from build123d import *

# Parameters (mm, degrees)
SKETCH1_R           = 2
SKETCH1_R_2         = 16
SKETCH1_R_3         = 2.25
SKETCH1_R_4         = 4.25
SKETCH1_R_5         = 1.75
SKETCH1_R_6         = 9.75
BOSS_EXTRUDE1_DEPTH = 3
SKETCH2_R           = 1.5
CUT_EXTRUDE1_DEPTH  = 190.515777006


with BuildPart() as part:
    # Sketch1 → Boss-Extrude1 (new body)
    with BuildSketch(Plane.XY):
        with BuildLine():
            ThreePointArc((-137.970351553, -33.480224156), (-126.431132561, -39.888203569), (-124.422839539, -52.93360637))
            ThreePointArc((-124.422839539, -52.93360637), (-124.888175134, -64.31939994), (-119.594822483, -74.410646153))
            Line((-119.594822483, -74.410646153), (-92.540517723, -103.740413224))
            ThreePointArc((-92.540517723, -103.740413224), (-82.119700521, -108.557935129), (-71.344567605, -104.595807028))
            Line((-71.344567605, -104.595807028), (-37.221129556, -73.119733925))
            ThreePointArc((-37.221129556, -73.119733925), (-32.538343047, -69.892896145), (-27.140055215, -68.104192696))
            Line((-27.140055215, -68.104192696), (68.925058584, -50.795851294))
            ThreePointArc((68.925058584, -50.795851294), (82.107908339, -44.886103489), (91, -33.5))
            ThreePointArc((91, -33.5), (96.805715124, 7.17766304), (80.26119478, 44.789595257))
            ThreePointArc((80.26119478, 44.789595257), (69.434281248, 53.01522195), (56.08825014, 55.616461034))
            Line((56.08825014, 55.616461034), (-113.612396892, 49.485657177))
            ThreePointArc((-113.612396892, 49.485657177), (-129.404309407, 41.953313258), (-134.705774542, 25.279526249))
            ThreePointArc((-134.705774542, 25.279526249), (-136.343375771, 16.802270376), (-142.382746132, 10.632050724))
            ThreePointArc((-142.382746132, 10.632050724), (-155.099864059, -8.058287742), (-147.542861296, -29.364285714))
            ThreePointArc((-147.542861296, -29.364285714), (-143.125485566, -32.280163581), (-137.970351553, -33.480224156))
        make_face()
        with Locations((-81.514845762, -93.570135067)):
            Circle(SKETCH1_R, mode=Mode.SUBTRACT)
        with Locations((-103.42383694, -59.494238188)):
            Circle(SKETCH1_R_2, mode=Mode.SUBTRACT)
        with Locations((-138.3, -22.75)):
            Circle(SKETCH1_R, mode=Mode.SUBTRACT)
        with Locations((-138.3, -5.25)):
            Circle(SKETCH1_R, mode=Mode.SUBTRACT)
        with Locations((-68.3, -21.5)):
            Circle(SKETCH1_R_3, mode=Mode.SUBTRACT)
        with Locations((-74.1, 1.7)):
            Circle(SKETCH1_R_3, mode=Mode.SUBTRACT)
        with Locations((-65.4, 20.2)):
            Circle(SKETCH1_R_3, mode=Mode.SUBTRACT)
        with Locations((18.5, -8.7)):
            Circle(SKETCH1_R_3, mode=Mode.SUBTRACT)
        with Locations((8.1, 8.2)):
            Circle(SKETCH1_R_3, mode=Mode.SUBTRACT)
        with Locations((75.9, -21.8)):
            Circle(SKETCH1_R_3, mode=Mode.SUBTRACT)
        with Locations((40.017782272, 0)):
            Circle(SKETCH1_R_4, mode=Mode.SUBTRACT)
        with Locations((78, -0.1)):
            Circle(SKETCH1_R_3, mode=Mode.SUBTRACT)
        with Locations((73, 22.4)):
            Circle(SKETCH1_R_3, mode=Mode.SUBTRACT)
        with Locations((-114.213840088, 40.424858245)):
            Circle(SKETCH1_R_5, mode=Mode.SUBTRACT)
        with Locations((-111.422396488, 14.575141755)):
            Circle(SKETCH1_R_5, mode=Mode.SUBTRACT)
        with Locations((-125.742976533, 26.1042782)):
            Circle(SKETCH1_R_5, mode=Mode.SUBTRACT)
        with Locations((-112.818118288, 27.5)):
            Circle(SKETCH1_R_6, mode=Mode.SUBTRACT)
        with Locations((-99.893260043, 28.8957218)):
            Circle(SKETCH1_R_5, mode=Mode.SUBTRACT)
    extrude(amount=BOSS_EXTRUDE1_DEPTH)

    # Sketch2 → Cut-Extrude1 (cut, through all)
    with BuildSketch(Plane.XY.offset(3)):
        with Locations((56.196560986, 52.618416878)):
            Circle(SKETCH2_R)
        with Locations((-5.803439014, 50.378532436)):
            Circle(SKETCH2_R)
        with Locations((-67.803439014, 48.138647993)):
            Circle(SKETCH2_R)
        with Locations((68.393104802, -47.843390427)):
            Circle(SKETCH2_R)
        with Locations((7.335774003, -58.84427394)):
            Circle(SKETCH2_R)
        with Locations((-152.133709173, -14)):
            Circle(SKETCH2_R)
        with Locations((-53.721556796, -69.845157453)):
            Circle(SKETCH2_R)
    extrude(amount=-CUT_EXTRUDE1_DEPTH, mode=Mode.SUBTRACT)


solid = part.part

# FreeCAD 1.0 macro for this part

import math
import FreeCAD as App
import Part
import Sketcher

V = App.Vector
Q = App.Units.Quantity

doc = App.newDocument("Part")
body = doc.addObject("PartDesign::Body", "Body")

sketch1 = doc.addObject("Sketcher::SketchObject", "Sketch")
body.addObject(sketch1)
sketch1.AttachmentSupport = (doc.XY_Plane, [""])
sketch1.MapMode = "FlatFace"
sketch1.addGeometry([
    Part.ArcOfCircle(Part.Circle(V(-138.7, -48.5, 0), V(0, 0, 1), 15), math.radians(-17), math.radians(87)),
    Part.ArcOfCircle(Part.Circle(V(-103.4, -59.5, 0), V(0, 0, 1), 22), math.radians(163), math.radians(223)),
    Part.LineSegment(V(-119.6, -74.4, 0), V(-92.5, -103.7, 0)),
    Part.ArcOfCircle(Part.Circle(V(-81.5, -93.6, 0), V(0, 0, 1), 15), math.radians(-137), math.radians(-47)),
    Part.LineSegment(V(-71.3, -104.6, 0), V(-37.2, -73.1, 0)),
    Part.ArcOfCircle(Part.Circle(V(-23.6, -87.9, 0), V(0, 0, 1), 20.1), math.radians(100), math.radians(133)),
    Part.LineSegment(V(-27.1, -68.1, 0), V(68.9, -50.8, 0)),
    Part.ArcOfCircle(Part.Circle(V(63.6, -21.3, 0), V(0, 0, 1), 30), math.radians(-80), math.radians(-24)),
    Part.ArcOfCircle(Part.Circle(V(22.7, -3, 0), V(0, 0, 1), 74.8), math.radians(-24), math.radians(40)),
    Part.ArcOfCircle(Part.Circle(V(57.2, 25.6, 0), V(0, 0, 1), 30), math.radians(40), math.radians(92)),
    Part.LineSegment(V(56.1, 55.6, 0), V(-113.6, 49.5, 0)),
    Part.ArcOfCircle(Part.Circle(V(-112.8, 27.5, 0), V(0, 0, 1), 22), math.radians(92), math.radians(186)),
    Part.ArcOfCircle(Part.Circle(V(-149.6, 23.8, 0), V(0, 0, 1), 15), math.radians(-61), math.radians(6)),
    Part.ArcOfCircle(Part.Circle(V(-130.3, -11.3, 0), V(0, 0, 1), 25), math.radians(119), math.radians(226)),
    Part.ArcOfCircle(Part.Circle(V(-137.2, -18.5, 0), V(0, 0, 1), 15), math.radians(-134), math.radians(-93)),
    Part.Circle(V(-81.5, -93.6, 0), V(0, 0, 1), 2),
    Part.Circle(V(-103.4, -59.5, 0), V(0, 0, 1), 16),
    Part.Circle(V(-138.3, -22.8, 0), V(0, 0, 1), 2),
    Part.Circle(V(-138.3, -5.2, 0), V(0, 0, 1), 2),
    Part.Circle(V(-68.3, -21.5, 0), V(0, 0, 1), 2.2),
    Part.Circle(V(-74.1, 1.7, 0), V(0, 0, 1), 2.2),
    Part.Circle(V(-111.4, 14.6, 0), V(0, 0, 1), 1.8),
    Part.Circle(V(-125.7, 26.1, 0), V(0, 0, 1), 1.8),
    Part.Circle(V(-112.8, 27.5, 0), V(0, 0, 1), 9.8),
    Part.Circle(V(-114.2, 40.4, 0), V(0, 0, 1), 1.8),
    Part.Circle(V(-99.9, 28.9, 0), V(0, 0, 1), 1.8),
    Part.Circle(V(-65.4, 20.2, 0), V(0, 0, 1), 2.2),
    Part.Circle(V(18.5, -8.7, 0), V(0, 0, 1), 2.2),
    Part.Circle(V(75.9, -21.8, 0), V(0, 0, 1), 2.2),
    Part.Circle(V(40, 0, 0), V(0, 0, 1), 4.2),
    Part.Circle(V(78, -0.1, 0), V(0, 0, 1), 2.2),
    Part.Circle(V(8.1, 8.2, 0), V(0, 0, 1), 2.2),
    Part.Circle(V(73, 22.4, 0), V(0, 0, 1), 2.2),
], False)
sketch1.addConstraint([
    Sketcher.Constraint("Tangent", 0, 1, 1, 1),
    Sketcher.Constraint("Tangent", 1, 2, 2, 1),
    Sketcher.Constraint("Tangent", 2, 2, 3, 1),
    Sketcher.Constraint("Tangent", 3, 2, 4, 1),
    Sketcher.Constraint("Tangent", 4, 2, 5, 2),
    Sketcher.Constraint("Tangent", 5, 1, 6, 1),
    Sketcher.Constraint("Tangent", 6, 2, 7, 1),
    Sketcher.Constraint("Tangent", 7, 2, 8, 1),
    Sketcher.Constraint("Tangent", 8, 2, 9, 1),
    Sketcher.Constraint("Tangent", 9, 2, 10, 1),
    Sketcher.Constraint("Tangent", 10, 2, 11, 1),
    Sketcher.Constraint("Tangent", 11, 2, 12, 2),
    Sketcher.Constraint("Tangent", 12, 1, 13, 1),
    Sketcher.Constraint("Tangent", 13, 2, 14, 1),
    Sketcher.Constraint("Tangent", 14, 2, 0, 2),
    Sketcher.Constraint("Coincident", 15, 3, 3, 3),
    Sketcher.Constraint("Coincident", 16, 3, 1, 3),
    Sketcher.Constraint("Coincident", 23, 3, 11, 3),
    Sketcher.Constraint("Equal", 0, 3),
    Sketcher.Constraint("Equal", 7, 9),
    Sketcher.Constraint("Equal", 1, 11),
    Sketcher.Constraint("Equal", 3, 12),
    Sketcher.Constraint("Equal", 12, 14),
    Sketcher.Constraint("Equal", 15, 17),
    Sketcher.Constraint("Equal", 17, 18),
    Sketcher.Constraint("Equal", 19, 20),
    Sketcher.Constraint("Equal", 21, 22),
    Sketcher.Constraint("Equal", 22, 24),
    Sketcher.Constraint("Equal", 24, 25),
    Sketcher.Constraint("Equal", 20, 26),
    Sketcher.Constraint("Equal", 26, 27),
    Sketcher.Constraint("Equal", 27, 28),
    Sketcher.Constraint("Equal", 28, 30),
    Sketcher.Constraint("Equal", 30, 31),
    Sketcher.Constraint("Equal", 31, 32),
    Sketcher.Constraint("PointOnObject", 29, 3, -1),
    Sketcher.Constraint("Perpendicular", 2, 4),
    Sketcher.Constraint("Vertical", 17, 3, 18, 3),
    Sketcher.Constraint("Diameter", 15, Q("4 mm")),
    Sketcher.Constraint("Diameter", 16, Q("32 mm")),
    Sketcher.Constraint("Radius", 0, Q("15 mm")),
    Sketcher.Constraint("Radius", 1, Q("22 mm")),
    Sketcher.Constraint("Radius", 7, Q("30 mm")),
    Sketcher.Constraint("Radius", 13, Q("25 mm")),
    Sketcher.Constraint("Diameter", 19, Q("4.5 mm")),
    Sketcher.Constraint("Diameter", 21, Q("3.5 mm")),
    Sketcher.Constraint("Diameter", 23, Q("19.5 mm")),
    Sketcher.Constraint("Diameter", 29, Q("8.5 mm")),
    Sketcher.Constraint("DistanceX", -1, 1, 30, 3, Q("78 mm")),
    Sketcher.Constraint("DistanceX", -1, 1, 32, 3, Q("73 mm")),
    Sketcher.Constraint("DistanceX", -1, 1, 7, 2, Q("91 mm")),
    Sketcher.Constraint("DistanceY", 14, 3, 11, 3, Q("46 mm")),
    Sketcher.Constraint("DistanceY", 19, 3, 11, 3, Q("49 mm")),
    Sketcher.Constraint("DistanceY", -1, 1, 11, 3, Q("27.5 mm")),
    Sketcher.Constraint("DistanceX", 17, 3, -1, 1, Q("138.3 mm")),
    Sketcher.Constraint("DistanceX", 19, 3, -1, 1, Q("68.3 mm")),
    Sketcher.Constraint("DistanceX", 20, 3, -1, 1, Q("74.1 mm")),
    Sketcher.Constraint("DistanceY", -1, 1, 20, 3, Q("1.7 mm")),
    Sketcher.Constraint("DistanceX", 26, 3, -1, 1, Q("65.4 mm")),
    Sketcher.Constraint("DistanceY", -1, 1, 26, 3, Q("20.2 mm")),
    Sketcher.Constraint("DistanceX", -1, 1, 27, 3, Q("18.5 mm")),
    Sketcher.Constraint("DistanceY", 27, 3, -1, 1, Q("8.7 mm")),
    Sketcher.Constraint("DistanceX", -1, 1, 28, 3, Q("75.9 mm")),
    Sketcher.Constraint("DistanceY", 28, 3, -1, 1, Q("21.8 mm")),
    Sketcher.Constraint("DistanceY", 30, 3, -1, 1, Q("0.1 mm")),
    Sketcher.Constraint("DistanceX", -1, 1, 31, 3, Q("8.1 mm")),
    Sketcher.Constraint("DistanceY", -1, 1, 31, 3, Q("8.2 mm")),
    Sketcher.Constraint("DistanceY", -1, 1, 32, 3, Q("22.4 mm")),
    Sketcher.Constraint("DistanceY", 7, 2, -1, 1, Q("33.5 mm")),
    Sketcher.Constraint("DistanceY", 17, 3, 18, 3, Q("17.5 mm")),
    Sketcher.Constraint("DistanceY", 17, 3, -1, 1, Q("22.75 mm")),
    Sketcher.Constraint("Radius", 5, Q("20.133936 mm")),
    Sketcher.Constraint("Radius", 8, Q("74.841085 mm")),
    Sketcher.Constraint("DistanceX", 14, 3, 13, 3, Q("6.895 mm")),
    Sketcher.Constraint("DistanceX", 3, 3, 5, 3, Q("57.944898 mm")),
    Sketcher.Constraint("DistanceY", 5, 3, 9, 3, Q("113.555099 mm")),
    Sketcher.Constraint("DistanceY", 3, 3, 12, 3, Q("117.335702 mm")),
    Sketcher.Constraint("DistanceX", 12, 3, 22, 3, Q("23.8862 mm")),
    Sketcher.Constraint("DistanceX", 0, 3, 0, 1, Q("14.317502 mm")),
    Sketcher.Constraint("DistanceY", 3, 3, 4, 2, Q("20.450401 mm")),
    Sketcher.Constraint("DistanceY", 24, 3, 10, 2, Q("9.060799 mm")),
    Sketcher.Constraint("DistanceX", 11, 2, 22, 3, Q("8.962798 mm")),
    Sketcher.Constraint("Distance", 6, Q("97.611909 mm")),
    Sketcher.Constraint("DistanceX", 0, 3, -1, 1, Q("138.740341 mm")),
    Sketcher.Constraint("DistanceY", 0, 3, -1, 1, Q("48.460448 mm")),
    Sketcher.Constraint("DistanceY", -1, 1, 21, 3, Q("14.575142 mm")),
    Sketcher.Constraint("DistanceY", -1, 1, 22, 3, Q("26.104278 mm")),
    Sketcher.Constraint("DistanceX", 24, 3, -1, 1, Q("114.21384 mm")),
    Sketcher.Constraint("DistanceX", 25, 3, -1, 1, Q("99.89326 mm")),
    Sketcher.Constraint("DistanceY", -1, 1, 25, 3, Q("28.895722 mm")),
    Sketcher.Constraint("DistanceX", 11, 3, 21, 3, Q("1.395722 mm")),
    Sketcher.Constraint("DistanceX", 29, 3, 7, 3, Q("23.587738 mm")),
])
pad1 = doc.addObject("PartDesign::Pad", "Pad")
body.addObject(pad1)
pad1.Profile = sketch1
pad1.Length = 3

sketch2 = doc.addObject("Sketcher::SketchObject", "Sketch001")
body.addObject(sketch2)
sketch2.AttachmentSupport = (doc.XY_Plane, [""])
sketch2.MapMode = "FlatFace"
sketch2.AttachmentOffset = App.Placement(V(0, 0, 3), App.Rotation())
sketch2.addGeometry([
    Part.Circle(V(56.2, 52.6, 0), V(0, 0, 1), 1.5),
    Part.Circle(V(-5.8, 50.4, 0), V(0, 0, 1), 1.5),
    Part.Circle(V(-67.8, 48.1, 0), V(0, 0, 1), 1.5),
    Part.Circle(V(68.4, -47.8, 0), V(0, 0, 1), 1.5),
    Part.Circle(V(7.3, -58.8, 0), V(0, 0, 1), 1.5),
    Part.Circle(V(-152.1, -14, 0), V(0, 0, 1), 1.5),
    Part.Circle(V(-53.7, -69.8, 0), V(0, 0, 1), 1.5),
], False)
sketch2.addConstraint([
    Sketcher.Constraint("Equal", 0, 1),
    Sketcher.Constraint("Equal", 1, 2),
    Sketcher.Constraint("Equal", 2, 3),
    Sketcher.Constraint("Equal", 3, 4),
    Sketcher.Constraint("Equal", 4, 5),
    Sketcher.Constraint("Equal", 5, 6),
    Sketcher.Constraint("Diameter", 0, Q("3 mm")),
    Sketcher.Constraint("DistanceY", 5, 3, -1, 1, Q("14 mm")),
    Sketcher.Constraint("DistanceX", 1, 3, 0, 3, Q("62 mm")),
    Sketcher.Constraint("DistanceX", 2, 3, 1, 3, Q("62 mm")),
    Sketcher.Constraint("DistanceX", -1, 1, 0, 3, Q("56.196561 mm")),
    Sketcher.Constraint("DistanceY", 3, 3, -1, 1, Q("47.84339 mm")),
    Sketcher.Constraint("DistanceX", 5, 3, -1, 1, Q("152.133709 mm")),
    Sketcher.Constraint("DistanceY", 2, 3, 0, 3, Q("4.479769 mm")),
    Sketcher.Constraint("DistanceY", 3, 3, 2, 3, Q("95.982038 mm")),
    Sketcher.Constraint("DistanceX", 4, 3, 3, 3, Q("61.057331 mm")),
    Sketcher.Constraint("DistanceY", 4, 3, 0, 3, Q("111.462691 mm")),
    Sketcher.Constraint("DistanceX", 6, 3, 4, 3, Q("61.057331 mm")),
    Sketcher.Constraint("DistanceY", 6, 3, 1, 3, Q("120.22369 mm")),
    Sketcher.Constraint("DistanceY", -1, 1, 1, 3, Q("50.378532 mm")),
    Sketcher.Constraint("DistanceX", -1, 1, 3, 3, Q("68.393105 mm")),
])
pocket1 = doc.addObject("PartDesign::Pocket", "Pocket")
body.addObject(pocket1)
pocket1.Profile = sketch2
pocket1.Type = "ThroughAll"

doc.recompute()
